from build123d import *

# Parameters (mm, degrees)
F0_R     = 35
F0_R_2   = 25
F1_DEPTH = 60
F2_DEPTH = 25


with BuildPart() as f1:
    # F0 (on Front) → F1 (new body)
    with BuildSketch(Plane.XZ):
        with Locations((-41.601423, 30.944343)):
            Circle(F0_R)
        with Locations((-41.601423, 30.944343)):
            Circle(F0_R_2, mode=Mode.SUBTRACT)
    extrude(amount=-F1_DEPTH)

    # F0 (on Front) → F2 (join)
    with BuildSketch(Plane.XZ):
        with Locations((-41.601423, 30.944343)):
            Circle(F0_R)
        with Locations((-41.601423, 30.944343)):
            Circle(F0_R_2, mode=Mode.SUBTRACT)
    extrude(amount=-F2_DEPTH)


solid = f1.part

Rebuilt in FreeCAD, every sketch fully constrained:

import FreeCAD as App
import Part
import Sketcher

doc = App.newDocument("Part")
body = doc.addObject("PartDesign::Body", "Body")

sketch1 = body.newObject("Sketcher::SketchObject", "Sketch")
sketch1.AttachmentSupport = (doc.getObject("XZ_Plane"), [""])
sketch1.MapMode = "FlatFace"
sketch1.addGeometry([
    Part.Circle(App.Vector(-42, 31, 0), App.Vector(0, 0, 1), 35),
    Part.Circle(App.Vector(-42, 31, 0), App.Vector(0, 0, 1), 25),
], False)
sketch1.addConstraint([
    Sketcher.Constraint("Coincident", 1, 3, 0, 3),
    Sketcher.Constraint("Diameter", 0, 70.0),
    Sketcher.Constraint("Diameter", 1, 50.0),
    Sketcher.Constraint("DistanceX", 0, 3, -1, 1, 41.601423),
    Sketcher.Constraint("DistanceY", -1, 1, 0, 3, 30.944343),
])
pad1 = body.newObject("PartDesign::Pad", "Pad")
pad1.Profile = sketch1
pad1.Length = 60
pad1.Reversed = True

sketch2 = body.newObject("Sketcher::SketchObject", "Sketch001")
sketch2.AttachmentSupport = (doc.getObject("XZ_Plane"), [""])
sketch2.MapMode = "FlatFace"
sketch2.addGeometry([
    Part.Circle(App.Vector(-42, 31, 0), App.Vector(0, 0, 1), 35),
    Part.Circle(App.Vector(-42, 31, 0), App.Vector(0, 0, 1), 25),
], False)
sketch2.addConstraint([
    Sketcher.Constraint("Coincident", 1, 3, 0, 3),
    Sketcher.Constraint("Diameter", 0, 70.0),
    Sketcher.Constraint("Diameter", 1, 50.0),
    Sketcher.Constraint("DistanceX", 0, 3, -1, 1, 41.601423),
    Sketcher.Constraint("DistanceY", -1, 1, 0, 3, 30.944343),
])
pad2 = body.newObject("PartDesign::Pad", "Pad001")
pad2.Profile = sketch2
pad2.Length = 25
pad2.Reversed = True

doc.recompute()
